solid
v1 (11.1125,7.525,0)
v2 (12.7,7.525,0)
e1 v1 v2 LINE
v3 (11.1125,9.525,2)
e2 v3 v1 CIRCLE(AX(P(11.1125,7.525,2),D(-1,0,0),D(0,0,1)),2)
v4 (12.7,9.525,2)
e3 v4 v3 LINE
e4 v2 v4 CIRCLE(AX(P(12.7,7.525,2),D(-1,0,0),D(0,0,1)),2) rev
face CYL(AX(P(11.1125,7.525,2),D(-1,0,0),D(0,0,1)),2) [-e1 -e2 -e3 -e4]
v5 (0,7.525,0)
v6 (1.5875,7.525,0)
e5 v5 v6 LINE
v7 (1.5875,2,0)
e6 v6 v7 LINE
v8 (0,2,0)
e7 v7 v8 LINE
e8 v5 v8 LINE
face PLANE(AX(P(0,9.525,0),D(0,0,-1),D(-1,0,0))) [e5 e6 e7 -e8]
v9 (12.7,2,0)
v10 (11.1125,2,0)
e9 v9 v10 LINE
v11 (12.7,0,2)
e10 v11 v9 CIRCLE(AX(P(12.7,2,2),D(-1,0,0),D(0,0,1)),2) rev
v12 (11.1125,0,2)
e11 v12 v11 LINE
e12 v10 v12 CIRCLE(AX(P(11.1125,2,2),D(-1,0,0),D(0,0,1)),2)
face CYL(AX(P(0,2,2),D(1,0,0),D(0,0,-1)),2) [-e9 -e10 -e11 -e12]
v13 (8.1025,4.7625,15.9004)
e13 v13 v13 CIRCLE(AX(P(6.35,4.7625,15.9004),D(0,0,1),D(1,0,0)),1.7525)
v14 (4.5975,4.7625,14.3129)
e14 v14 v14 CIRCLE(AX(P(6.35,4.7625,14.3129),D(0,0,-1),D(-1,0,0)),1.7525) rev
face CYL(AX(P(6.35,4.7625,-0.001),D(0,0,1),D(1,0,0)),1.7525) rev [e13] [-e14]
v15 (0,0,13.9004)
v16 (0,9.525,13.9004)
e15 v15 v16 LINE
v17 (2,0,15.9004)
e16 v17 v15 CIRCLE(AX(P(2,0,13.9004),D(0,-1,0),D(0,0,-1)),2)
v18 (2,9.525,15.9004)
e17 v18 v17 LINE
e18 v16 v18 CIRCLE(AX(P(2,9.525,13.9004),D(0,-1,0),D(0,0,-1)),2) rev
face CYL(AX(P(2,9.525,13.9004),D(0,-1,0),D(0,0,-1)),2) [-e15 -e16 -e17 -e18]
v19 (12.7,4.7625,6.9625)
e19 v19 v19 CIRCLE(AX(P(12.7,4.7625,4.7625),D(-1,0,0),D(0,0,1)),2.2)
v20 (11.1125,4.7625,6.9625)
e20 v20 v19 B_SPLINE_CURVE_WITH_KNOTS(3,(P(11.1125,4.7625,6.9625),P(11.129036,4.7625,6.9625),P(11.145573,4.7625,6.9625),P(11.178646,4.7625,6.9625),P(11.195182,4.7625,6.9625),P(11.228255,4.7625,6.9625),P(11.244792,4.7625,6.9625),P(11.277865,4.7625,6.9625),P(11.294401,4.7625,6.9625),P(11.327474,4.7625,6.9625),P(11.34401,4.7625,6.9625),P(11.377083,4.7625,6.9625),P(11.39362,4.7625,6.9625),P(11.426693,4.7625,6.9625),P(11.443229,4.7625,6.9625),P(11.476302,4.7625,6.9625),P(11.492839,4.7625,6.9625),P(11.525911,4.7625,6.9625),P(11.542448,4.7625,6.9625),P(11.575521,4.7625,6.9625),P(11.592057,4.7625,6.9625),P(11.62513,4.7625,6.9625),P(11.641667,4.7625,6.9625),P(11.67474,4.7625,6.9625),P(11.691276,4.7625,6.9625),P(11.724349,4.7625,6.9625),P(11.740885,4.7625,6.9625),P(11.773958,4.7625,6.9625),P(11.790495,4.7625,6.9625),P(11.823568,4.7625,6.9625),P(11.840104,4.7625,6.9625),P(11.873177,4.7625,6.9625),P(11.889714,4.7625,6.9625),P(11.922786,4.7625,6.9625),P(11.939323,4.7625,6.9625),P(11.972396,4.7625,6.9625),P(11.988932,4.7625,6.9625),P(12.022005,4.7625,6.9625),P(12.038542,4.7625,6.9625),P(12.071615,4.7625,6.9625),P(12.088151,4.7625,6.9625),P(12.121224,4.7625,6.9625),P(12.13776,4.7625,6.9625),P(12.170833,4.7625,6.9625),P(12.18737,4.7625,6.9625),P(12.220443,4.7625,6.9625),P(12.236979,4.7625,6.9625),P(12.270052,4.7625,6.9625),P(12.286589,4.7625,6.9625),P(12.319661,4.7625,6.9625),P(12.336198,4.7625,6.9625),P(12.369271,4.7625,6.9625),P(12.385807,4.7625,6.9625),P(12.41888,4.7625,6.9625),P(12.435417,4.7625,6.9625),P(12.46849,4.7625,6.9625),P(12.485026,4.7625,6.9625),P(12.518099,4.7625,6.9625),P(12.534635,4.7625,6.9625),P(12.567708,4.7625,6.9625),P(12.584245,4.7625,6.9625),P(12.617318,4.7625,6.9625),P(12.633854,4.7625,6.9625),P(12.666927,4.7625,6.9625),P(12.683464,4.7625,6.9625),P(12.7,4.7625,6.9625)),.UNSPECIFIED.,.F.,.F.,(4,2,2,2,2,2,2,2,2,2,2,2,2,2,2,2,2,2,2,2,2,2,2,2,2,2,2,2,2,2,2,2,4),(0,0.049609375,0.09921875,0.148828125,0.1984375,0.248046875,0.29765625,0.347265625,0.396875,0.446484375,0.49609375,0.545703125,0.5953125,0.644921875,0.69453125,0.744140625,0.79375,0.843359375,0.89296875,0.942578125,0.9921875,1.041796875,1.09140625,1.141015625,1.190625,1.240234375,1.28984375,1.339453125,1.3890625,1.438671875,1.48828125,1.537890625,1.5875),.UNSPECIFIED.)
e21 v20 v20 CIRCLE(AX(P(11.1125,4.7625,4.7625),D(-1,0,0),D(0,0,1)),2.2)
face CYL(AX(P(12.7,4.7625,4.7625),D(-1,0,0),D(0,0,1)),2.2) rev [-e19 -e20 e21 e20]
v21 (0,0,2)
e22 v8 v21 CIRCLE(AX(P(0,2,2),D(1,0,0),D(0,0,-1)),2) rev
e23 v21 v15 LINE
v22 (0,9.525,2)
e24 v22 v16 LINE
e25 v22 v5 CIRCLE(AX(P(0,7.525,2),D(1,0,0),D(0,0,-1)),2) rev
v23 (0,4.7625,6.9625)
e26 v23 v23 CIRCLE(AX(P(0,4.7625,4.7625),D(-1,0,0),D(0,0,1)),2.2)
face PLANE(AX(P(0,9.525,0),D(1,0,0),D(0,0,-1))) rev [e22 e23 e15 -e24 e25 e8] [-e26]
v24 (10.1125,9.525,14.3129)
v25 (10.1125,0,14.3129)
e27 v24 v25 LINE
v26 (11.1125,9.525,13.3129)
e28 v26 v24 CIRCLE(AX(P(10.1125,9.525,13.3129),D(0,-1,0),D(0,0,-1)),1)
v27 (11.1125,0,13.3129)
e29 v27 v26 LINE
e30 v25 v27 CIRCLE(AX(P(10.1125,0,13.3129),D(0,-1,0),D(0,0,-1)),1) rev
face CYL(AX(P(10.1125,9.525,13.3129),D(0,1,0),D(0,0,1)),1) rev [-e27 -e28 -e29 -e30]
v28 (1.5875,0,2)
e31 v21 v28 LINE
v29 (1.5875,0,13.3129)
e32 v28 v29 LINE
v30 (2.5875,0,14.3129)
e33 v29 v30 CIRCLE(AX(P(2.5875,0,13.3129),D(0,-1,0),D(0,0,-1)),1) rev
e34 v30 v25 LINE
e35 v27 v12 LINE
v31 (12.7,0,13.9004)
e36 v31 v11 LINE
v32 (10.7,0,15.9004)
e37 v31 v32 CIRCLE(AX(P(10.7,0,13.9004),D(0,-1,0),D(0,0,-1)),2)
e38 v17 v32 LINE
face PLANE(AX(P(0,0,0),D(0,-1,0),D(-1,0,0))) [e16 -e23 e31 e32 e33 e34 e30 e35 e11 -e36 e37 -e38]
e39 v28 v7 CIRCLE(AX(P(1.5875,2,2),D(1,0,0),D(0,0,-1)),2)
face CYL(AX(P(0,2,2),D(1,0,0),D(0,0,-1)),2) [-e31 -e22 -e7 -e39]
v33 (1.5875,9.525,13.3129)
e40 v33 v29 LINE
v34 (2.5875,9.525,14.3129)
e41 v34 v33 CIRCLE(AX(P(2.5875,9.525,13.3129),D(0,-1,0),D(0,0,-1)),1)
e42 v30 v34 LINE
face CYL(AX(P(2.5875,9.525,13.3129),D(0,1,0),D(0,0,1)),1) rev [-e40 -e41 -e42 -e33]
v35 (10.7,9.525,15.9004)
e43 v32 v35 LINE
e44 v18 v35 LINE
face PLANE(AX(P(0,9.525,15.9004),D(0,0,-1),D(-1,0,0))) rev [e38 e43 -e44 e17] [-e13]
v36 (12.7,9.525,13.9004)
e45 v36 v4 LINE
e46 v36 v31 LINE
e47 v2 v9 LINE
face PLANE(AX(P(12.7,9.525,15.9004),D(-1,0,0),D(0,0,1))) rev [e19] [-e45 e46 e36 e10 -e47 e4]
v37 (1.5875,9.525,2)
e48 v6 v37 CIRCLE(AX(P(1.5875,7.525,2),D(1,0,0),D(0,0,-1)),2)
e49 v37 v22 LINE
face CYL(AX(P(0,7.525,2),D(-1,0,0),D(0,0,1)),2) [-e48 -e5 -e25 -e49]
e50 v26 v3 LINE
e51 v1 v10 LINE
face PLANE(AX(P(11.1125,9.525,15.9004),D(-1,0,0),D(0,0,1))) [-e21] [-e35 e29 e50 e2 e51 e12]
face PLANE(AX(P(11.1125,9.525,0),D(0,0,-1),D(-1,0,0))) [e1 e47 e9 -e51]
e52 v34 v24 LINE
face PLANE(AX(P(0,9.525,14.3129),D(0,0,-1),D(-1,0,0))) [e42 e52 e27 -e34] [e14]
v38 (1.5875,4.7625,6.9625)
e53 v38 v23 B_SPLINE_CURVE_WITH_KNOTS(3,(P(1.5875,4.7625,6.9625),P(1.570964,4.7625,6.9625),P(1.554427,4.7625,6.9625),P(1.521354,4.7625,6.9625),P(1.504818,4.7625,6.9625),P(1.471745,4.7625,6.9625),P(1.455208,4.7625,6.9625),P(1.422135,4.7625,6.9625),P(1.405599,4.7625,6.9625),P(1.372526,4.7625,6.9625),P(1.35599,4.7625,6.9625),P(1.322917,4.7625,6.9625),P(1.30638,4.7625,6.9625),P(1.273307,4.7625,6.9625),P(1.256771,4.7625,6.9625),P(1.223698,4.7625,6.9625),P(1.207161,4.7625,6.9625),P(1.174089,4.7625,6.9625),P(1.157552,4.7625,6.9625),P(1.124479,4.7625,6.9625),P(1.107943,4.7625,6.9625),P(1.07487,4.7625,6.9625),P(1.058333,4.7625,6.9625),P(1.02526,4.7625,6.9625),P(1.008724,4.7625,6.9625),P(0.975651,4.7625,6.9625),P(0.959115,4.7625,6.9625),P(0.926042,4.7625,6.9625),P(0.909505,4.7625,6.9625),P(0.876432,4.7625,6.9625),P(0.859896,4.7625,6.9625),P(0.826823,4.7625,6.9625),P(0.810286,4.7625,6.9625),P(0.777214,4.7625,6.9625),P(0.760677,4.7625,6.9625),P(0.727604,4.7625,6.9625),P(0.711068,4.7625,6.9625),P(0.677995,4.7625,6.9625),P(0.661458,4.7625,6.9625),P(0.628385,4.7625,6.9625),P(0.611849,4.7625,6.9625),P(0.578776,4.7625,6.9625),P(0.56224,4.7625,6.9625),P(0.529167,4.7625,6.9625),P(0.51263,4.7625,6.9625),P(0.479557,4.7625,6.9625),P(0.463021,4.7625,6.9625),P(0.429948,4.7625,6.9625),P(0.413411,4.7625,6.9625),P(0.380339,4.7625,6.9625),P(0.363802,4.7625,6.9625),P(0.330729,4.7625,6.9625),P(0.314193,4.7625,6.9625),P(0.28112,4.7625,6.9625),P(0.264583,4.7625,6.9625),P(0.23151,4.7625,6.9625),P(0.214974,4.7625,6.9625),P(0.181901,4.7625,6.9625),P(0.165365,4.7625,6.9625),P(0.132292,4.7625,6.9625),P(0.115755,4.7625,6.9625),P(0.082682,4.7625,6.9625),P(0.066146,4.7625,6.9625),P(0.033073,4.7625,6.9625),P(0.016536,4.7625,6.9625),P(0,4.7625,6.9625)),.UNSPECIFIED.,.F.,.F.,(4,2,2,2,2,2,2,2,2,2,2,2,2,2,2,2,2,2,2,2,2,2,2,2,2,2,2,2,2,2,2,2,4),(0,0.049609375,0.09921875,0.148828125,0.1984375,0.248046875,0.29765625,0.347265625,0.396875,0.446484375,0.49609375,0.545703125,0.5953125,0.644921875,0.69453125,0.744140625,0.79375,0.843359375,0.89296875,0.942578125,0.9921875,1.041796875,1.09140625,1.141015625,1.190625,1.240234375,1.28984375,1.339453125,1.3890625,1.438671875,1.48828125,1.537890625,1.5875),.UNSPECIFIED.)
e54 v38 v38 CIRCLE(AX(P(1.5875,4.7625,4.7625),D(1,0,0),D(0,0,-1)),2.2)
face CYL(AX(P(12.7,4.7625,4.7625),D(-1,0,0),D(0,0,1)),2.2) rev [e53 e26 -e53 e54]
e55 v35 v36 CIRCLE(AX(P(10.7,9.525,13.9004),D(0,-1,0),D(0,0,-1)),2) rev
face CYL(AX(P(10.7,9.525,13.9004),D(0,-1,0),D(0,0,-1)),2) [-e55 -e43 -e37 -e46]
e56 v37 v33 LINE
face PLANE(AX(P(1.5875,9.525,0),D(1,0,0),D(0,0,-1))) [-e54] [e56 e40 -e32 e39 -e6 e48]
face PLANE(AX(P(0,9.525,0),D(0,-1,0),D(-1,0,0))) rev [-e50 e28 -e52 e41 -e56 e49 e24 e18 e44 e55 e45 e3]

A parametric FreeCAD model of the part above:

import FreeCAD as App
import Part
import Sketcher

V = App.Vector
Q = App.Units.Quantity


def edges_at(feature, points):
    """Names of the edges that pass closest to the given points."""
    edges = feature.Shape.Edges
    near = lambda p: min(range(len(edges)), key=lambda i: edges[i].distToShape(Part.Vertex(*p))[0])
    return sorted({f"Edge{near(p) + 1}" for p in points})

doc = App.newDocument("Part")
body = doc.addObject("PartDesign::Body", "Body")

# Sketch on XZ plane
sketch1 = body.newObject("Sketcher::SketchObject", "Sketch")
sketch1.AttachmentSupport = (doc.getObject("XZ_Plane"), [""])
sketch1.MapMode = "FlatFace"
sketch1.addGeometry([
    Part.LineSegment(V(0, 0, 0), V(0, 15.9, 0)),  # 0
    Part.LineSegment(V(0, 15.9, 0), V(12.7, 15.9, 0)),  # 1
    Part.LineSegment(V(12.7, 15.9, 0), V(12.7, 0, 0)),  # 2
    Part.LineSegment(V(12.7, 0, 0), V(11.1, 0, 0)),  # 3
    Part.LineSegment(V(11.1, 0, 0), V(11.1, 14.3, 0)),  # 4
    Part.LineSegment(V(11.1, 14.3, 0), V(1.6, 14.3, 0)),  # 5
    Part.LineSegment(V(1.6, 14.3, 0), V(1.6, 0, 0)),  # 6
    Part.LineSegment(V(1.6, 0, 0), V(0, 0, 0)),  # 7
], False)
sketch1.addConstraint([
    Sketcher.Constraint("Coincident", 0, 2, 1, 1),
    Sketcher.Constraint("Coincident", 1, 2, 2, 1),
    Sketcher.Constraint("Coincident", 2, 2, 3, 1),
    Sketcher.Constraint("Coincident", 3, 2, 4, 1),
    Sketcher.Constraint("Coincident", 4, 2, 5, 1),
    Sketcher.Constraint("Coincident", 5, 2, 6, 1),
    Sketcher.Constraint("Coincident", 6, 2, 7, 1),
    Sketcher.Constraint("Coincident", 7, 2, 0, 1),
    Sketcher.Constraint("Vertical", 0),
    Sketcher.Constraint("Horizontal", 1),
    Sketcher.Constraint("Vertical", 2),
    Sketcher.Constraint("Horizontal", 3),
    Sketcher.Constraint("Vertical", 4),
    Sketcher.Constraint("Horizontal", 5),
    Sketcher.Constraint("Vertical", 6),
    Sketcher.Constraint("Horizontal", 7),
    Sketcher.Constraint("Coincident", 7, 2, -1, 1),
    Sketcher.Constraint("PointOnObject", 2, 2, -1),
    Sketcher.Constraint("Equal", 3, 7),
    Sketcher.Constraint("DistanceX", 1, 1, 1, 2, Q("0.5 in")),
    Sketcher.Constraint("DistanceX", 3, 2, 3, 1, Q("0.0625 in")),
    Sketcher.Constraint("DistanceY", 0, 1, 0, 2, Q("0.626 in")),
    Sketcher.Constraint("DistanceY", 4, 1, 4, 2, Q("0.5635 in")),
])
pad1 = body.newObject("PartDesign::Pad", "Pad")
pad1.Profile = sketch1
pad1.Length = Q("0.375 in")
pad1.Reversed = True
doc.recompute()

fillet = body.newObject("PartDesign::Fillet", "Fillet")
fillet.Base = (pad1, edges_at(pad1, [(1.587, 4.763, 14.313), (11.113, 4.763, 14.313)]))
fillet.Radius = 1
doc.recompute()

fillet2 = body.newObject("PartDesign::Fillet", "Fillet001")
fillet2.Base = (fillet, edges_at(fillet, [(12.7, 4.763, 15.9), (0, 4.763, 15.9)]))
fillet2.Radius = 2
doc.recompute()

fillet3 = body.newObject("PartDesign::Fillet", "Fillet002")
fillet3.Base = (fillet2, edges_at(fillet2, [
    (0.794, 9.525, 0),
    (0.794, 0, 0),
    (11.906, 9.525, 0),
    (11.906, 0, 0),
]))
fillet3.Radius = 2

# Sketch on YZ plane
sketch2 = body.newObject("Sketcher::SketchObject", "Sketch001")
sketch2.AttachmentSupport = (doc.getObject("YZ_Plane"), [""])
sketch2.MapMode = "FlatFace"
sketch2.addGeometry(Part.Circle(V(4.8, 4.8, 0), V(0, 0, 1), 2.2), False)
sketch2.addConstraint([
    Sketcher.Constraint("Diameter", 0, 4.4),
    Sketcher.Constraint("DistanceX", -1, 1, 0, 3, Q("0.1875 in")),
    Sketcher.Constraint("DistanceY", -1, 1, 0, 3, Q("0.1875 in")),
])
pocket1 = body.newObject("PartDesign::Pocket", "Pocket")
pocket1.Profile = sketch2
pocket1.Type = "ThroughAll"
pocket1.Reversed = True

# Sketch on XY plane
sketch3 = body.newObject("Sketcher::SketchObject", "Sketch002")
sketch3.AttachmentSupport = (doc.getObject("XY_Plane"), [""])
sketch3.MapMode = "FlatFace"
sketch3.AttachmentOffset = App.Placement(V(0, 0, 0.626 * 25.4), App.Rotation())
sketch3.addGeometry(Part.Circle(V(6.3, 4.8, 0), V(0, 0, 1), 1.8), False)
sketch3.addConstraint([
    Sketcher.Constraint("Diameter", 0, 3.505),
    Sketcher.Constraint("DistanceX", -1, 1, 0, 3, Q("0.25 in")),
    Sketcher.Constraint("DistanceY", -1, 1, 0, 3, Q("0.1875 in")),
])
pocket2 = body.newObject("PartDesign::Pocket", "Pocket001")
pocket2.Profile = sketch3
pocket2.Type = "UpToFirst"

doc.recompute()
